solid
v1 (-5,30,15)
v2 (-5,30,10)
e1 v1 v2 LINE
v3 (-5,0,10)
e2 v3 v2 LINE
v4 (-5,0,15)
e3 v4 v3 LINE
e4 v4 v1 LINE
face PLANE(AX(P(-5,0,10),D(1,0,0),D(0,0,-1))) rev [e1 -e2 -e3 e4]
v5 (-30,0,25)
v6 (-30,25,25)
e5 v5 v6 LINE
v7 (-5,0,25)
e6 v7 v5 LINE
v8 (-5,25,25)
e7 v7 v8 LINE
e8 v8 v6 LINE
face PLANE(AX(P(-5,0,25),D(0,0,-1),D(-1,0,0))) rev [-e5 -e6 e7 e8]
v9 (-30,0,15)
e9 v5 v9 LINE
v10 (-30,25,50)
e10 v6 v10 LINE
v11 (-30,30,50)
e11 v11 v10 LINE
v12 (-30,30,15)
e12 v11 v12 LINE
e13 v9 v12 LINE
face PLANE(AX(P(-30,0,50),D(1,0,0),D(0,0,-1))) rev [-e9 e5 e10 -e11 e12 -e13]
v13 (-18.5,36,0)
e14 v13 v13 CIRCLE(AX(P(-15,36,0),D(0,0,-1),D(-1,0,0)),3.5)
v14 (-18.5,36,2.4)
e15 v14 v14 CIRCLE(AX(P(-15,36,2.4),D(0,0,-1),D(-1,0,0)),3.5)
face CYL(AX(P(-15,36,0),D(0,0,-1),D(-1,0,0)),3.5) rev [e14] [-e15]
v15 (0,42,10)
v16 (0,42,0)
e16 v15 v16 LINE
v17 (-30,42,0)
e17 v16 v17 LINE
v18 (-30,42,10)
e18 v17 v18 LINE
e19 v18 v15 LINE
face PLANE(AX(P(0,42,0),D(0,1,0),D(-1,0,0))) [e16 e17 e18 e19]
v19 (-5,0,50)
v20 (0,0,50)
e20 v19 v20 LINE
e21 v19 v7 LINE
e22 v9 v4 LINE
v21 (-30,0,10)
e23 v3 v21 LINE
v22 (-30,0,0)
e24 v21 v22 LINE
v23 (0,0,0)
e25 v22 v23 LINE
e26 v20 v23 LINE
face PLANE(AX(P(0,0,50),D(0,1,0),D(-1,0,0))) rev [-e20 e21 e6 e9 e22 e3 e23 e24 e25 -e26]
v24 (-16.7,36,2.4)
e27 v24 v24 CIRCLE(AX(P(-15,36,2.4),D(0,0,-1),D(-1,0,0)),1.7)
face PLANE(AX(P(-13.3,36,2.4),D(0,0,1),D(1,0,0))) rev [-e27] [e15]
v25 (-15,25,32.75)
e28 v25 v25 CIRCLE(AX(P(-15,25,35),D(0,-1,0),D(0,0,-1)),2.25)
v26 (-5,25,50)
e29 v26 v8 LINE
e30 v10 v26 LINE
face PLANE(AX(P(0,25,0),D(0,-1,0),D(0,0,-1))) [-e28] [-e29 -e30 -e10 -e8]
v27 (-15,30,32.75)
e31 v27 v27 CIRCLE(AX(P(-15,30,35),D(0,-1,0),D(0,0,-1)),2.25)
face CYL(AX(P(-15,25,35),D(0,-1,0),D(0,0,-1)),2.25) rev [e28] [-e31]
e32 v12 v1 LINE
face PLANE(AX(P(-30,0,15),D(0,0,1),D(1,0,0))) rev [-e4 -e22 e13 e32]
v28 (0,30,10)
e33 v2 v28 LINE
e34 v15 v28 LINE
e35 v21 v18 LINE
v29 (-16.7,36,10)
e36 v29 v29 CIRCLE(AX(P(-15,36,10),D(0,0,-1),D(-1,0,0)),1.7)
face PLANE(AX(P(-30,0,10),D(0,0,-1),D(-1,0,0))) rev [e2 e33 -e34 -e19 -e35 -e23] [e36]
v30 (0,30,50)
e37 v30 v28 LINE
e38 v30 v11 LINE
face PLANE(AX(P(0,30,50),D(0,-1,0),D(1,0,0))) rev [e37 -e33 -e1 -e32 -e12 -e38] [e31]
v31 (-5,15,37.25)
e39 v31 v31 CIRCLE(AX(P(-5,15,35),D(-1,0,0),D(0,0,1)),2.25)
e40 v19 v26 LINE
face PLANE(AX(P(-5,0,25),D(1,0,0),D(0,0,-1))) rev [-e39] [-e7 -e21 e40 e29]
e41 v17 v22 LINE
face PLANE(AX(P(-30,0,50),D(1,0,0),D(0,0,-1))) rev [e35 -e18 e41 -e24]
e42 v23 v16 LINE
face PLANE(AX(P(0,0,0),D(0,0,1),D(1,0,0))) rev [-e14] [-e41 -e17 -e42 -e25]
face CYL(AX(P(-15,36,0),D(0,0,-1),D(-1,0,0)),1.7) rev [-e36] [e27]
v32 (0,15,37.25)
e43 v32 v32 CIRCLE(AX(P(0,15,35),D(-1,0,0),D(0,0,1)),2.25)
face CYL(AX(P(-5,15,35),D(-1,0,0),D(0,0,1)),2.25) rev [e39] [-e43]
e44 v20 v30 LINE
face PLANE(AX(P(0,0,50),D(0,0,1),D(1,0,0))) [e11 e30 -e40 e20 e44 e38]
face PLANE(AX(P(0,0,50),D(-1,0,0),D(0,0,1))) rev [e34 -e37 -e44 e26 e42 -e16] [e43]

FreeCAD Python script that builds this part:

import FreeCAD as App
import Part
import Sketcher
from FreeCAD import Vector

doc = App.newDocument("Part")
params = doc.addObject("Spreadsheet::Sheet", "Params")
for row, (alias, value) in enumerate([
    ("sketch1_width", "30 mm"),
    ("pad1_length", "50 mm"),
    ("sketch2_width", "25 mm"),
    ("sketch2_height", "5 mm"),
    ("sketch3_width", "25 mm"),
    ("sketch4_diameter", "4.5 mm"),
    ("hole_diameter", "4.5 mm"),
    ("sketch5_diameter", "4.5 mm"),
    ("hole2_diameter", "4.5 mm"),
    ("sketch6_width", "30 mm"),
    ("sketch6_height", "10 mm"),
    ("pad2_length", "12 mm"),
    ("sketch7_diameter", "3.4 mm"),
    ("hole3_diameter", "3.4 mm"),
    ("hole3_cbore_diameter", "7 mm"),
    ("hole3_cbore_depth", "2.4 mm"),
], start=1):
    params.set(f"A{row}", alias)
    params.set(f"B{row}", "=" + value)
    params.setAlias(f"B{row}", alias)

body = doc.addObject("PartDesign::Body", "Body")

sketch1 = body.newObject("Sketcher::SketchObject", "Sketch")
sketch1.AttachmentSupport = (doc.getObject("XY_Plane"), [""])
sketch1.MapMode = "FlatFace"
sketch1.addGeometry(Part.LineSegment(Vector(-30, 30, 0), Vector(-30, 0, 0)), False)
sketch1.addGeometry(Part.LineSegment(Vector(-30, 0, 0), Vector(0, 0, 0)), False)
sketch1.addGeometry(Part.LineSegment(Vector(0, 0, 0), Vector(0, 30, 0)), False)
sketch1.addGeometry(Part.LineSegment(Vector(0, 30, 0), Vector(-30, 30, 0)), False)
sketch1.addConstraint(Sketcher.Constraint("Coincident", 0, 2, 1, 1))
sketch1.addConstraint(Sketcher.Constraint("Coincident", 1, 2, 2, 1))
sketch1.addConstraint(Sketcher.Constraint("Coincident", 2, 2, 3, 1))
sketch1.addConstraint(Sketcher.Constraint("Coincident", 3, 2, 0, 1))
sketch1.addConstraint(Sketcher.Constraint("Vertical", 0))
sketch1.addConstraint(Sketcher.Constraint("Horizontal", 1))
sketch1.addConstraint(Sketcher.Constraint("Vertical", 2))
sketch1.addConstraint(Sketcher.Constraint("Horizontal", 3))
sketch1.addConstraint(Sketcher.Constraint("Coincident", 1, 2, -1, 1))
sketch1.addConstraint(Sketcher.Constraint("Equal", 3, 0))
sketch1.addConstraint(Sketcher.Constraint("DistanceX", 1, 1, 1, 2, 30.0))
sketch1.setExpression("Constraints[10]", "Params.sketch1_width")
pad1 = body.newObject("PartDesign::Pad", "Pad")
pad1.Profile = sketch1
pad1.setExpression("Length", "Params.pad1_length")

sketch2 = body.newObject("Sketcher::SketchObject", "Sketch001")
sketch2.AttachmentSupport = (doc.getObject("XZ_Plane"), [""])
sketch2.MapMode = "FlatFace"
sketch2.AttachmentOffset = App.Placement(Vector(0, 0, -30), App.Rotation())
sketch2.addGeometry(Part.LineSegment(Vector(-30, 10, 0), Vector(-30, 15, 0)), False)
sketch2.addGeometry(Part.LineSegment(Vector(-30, 15, 0), Vector(-5, 15, 0)), False)
sketch2.addGeometry(Part.LineSegment(Vector(-5, 15, 0), Vector(-5, 10, 0)), False)
sketch2.addGeometry(Part.LineSegment(Vector(-5, 10, 0), Vector(-30, 10, 0)), False)
sketch2.addConstraint(Sketcher.Constraint("Coincident", 0, 2, 1, 1))
sketch2.addConstraint(Sketcher.Constraint("Coincident", 1, 2, 2, 1))
sketch2.addConstraint(Sketcher.Constraint("Coincident", 2, 2, 3, 1))
sketch2.addConstraint(Sketcher.Constraint("Coincident", 3, 2, 0, 1))
sketch2.addConstraint(Sketcher.Constraint("Vertical", 0))
sketch2.addConstraint(Sketcher.Constraint("Horizontal", 1))
sketch2.addConstraint(Sketcher.Constraint("Vertical", 2))
sketch2.addConstraint(Sketcher.Constraint("Horizontal", 3))
sketch2.addConstraint(Sketcher.Constraint("DistanceX", 1, 1, 1, 2, 25.0))
sketch2.addConstraint(Sketcher.Constraint("DistanceY", 0, 1, 0, 2, 5.0))
sketch2.addConstraint(Sketcher.Constraint("DistanceX", 0, 2, -1, 1, 30.0))
sketch2.addConstraint(Sketcher.Constraint("DistanceY", -1, 1, 0, 2, 15.0))
sketch2.setExpression("Constraints[8]", "Params.sketch2_width")
sketch2.setExpression("Constraints[9]", "Params.sketch2_height")
pocket1 = body.newObject("PartDesign::Pocket", "Pocket")
pocket1.Profile = sketch2
pocket1.Type = "ThroughAll"
pocket1.Reversed = True

sketch3 = body.newObject("Sketcher::SketchObject", "Sketch002")
sketch3.AttachmentSupport = (doc.getObject("XZ_Plane"), [""])
sketch3.MapMode = "FlatFace"
sketch3.AttachmentOffset = App.Placement(Vector(0, 0, -25), App.Rotation())
sketch3.addGeometry(Part.LineSegment(Vector(-30, 25, 0), Vector(-30, 50, 0)), False)
sketch3.addGeometry(Part.LineSegment(Vector(-30, 50, 0), Vector(-5, 50, 0)), False)
sketch3.addGeometry(Part.LineSegment(Vector(-5, 50, 0), Vector(-5, 25, 0)), False)
sketch3.addGeometry(Part.LineSegment(Vector(-5, 25, 0), Vector(-30, 25, 0)), False)
sketch3.addConstraint(Sketcher.Constraint("Coincident", 0, 2, 1, 1))
sketch3.addConstraint(Sketcher.Constraint("Coincident", 1, 2, 2, 1))
sketch3.addConstraint(Sketcher.Constraint("Coincident", 2, 2, 3, 1))
sketch3.addConstraint(Sketcher.Constraint("Coincident", 3, 2, 0, 1))
sketch3.addConstraint(Sketcher.Constraint("Vertical", 0))
sketch3.addConstraint(Sketcher.Constraint("Horizontal", 1))
sketch3.addConstraint(Sketcher.Constraint("Vertical", 2))
sketch3.addConstraint(Sketcher.Constraint("Horizontal", 3))
sketch3.addConstraint(Sketcher.Constraint("Equal", 3, 0))
sketch3.addConstraint(Sketcher.Constraint("DistanceX", 1, 1, 1, 2, 25.0))
sketch3.addConstraint(Sketcher.Constraint("DistanceX", 0, 2, -1, 1, 30.0))
sketch3.addConstraint(Sketcher.Constraint("DistanceY", -1, 1, 0, 2, 50.0))
sketch3.setExpression("Constraints[9]", "Params.sketch3_width")
pocket2 = body.newObject("PartDesign::Pocket", "Pocket001")
pocket2.Profile = sketch3
pocket2.Type = "ThroughAll"
pocket2.Reversed = True

sketch4 = body.newObject("Sketcher::SketchObject", "Sketch003")
sketch4.AttachmentSupport = (doc.getObject("YZ_Plane"), [""])
sketch4.MapMode = "FlatFace"
sketch4.AttachmentOffset = App.Placement(Vector(0, 0, -5), App.Rotation())
sketch4.addGeometry(Part.Circle(Vector(15, 35, 0), Vector(0, 0, 1), 2.2), False)
sketch4.addConstraint(Sketcher.Constraint("Diameter", 0, 4.5))
sketch4.addConstraint(Sketcher.Constraint("DistanceX", -1, 1, 0, 3, 15.0))
sketch4.addConstraint(Sketcher.Constraint("DistanceY", -1, 1, 0, 3, 35.0))
sketch4.setExpression("Constraints[0]", "Params.sketch4_diameter")
doc.recompute()
hole = body.newObject("PartDesign::Hole", "Hole")
hole.Profile = sketch4
hole.ThreadType = "None"
hole.setExpression("Diameter", "Params.hole_diameter")
hole.DepthType = "ThroughAll"
hole.Reversed = True

sketch5 = body.newObject("Sketcher::SketchObject", "Sketch004")
sketch5.AttachmentSupport = (doc.getObject("XZ_Plane"), [""])
sketch5.MapMode = "FlatFace"
sketch5.AttachmentOffset = App.Placement(Vector(0, 0, -25), App.Rotation())
sketch5.addGeometry(Part.Circle(Vector(-15, 35, 0), Vector(0, 0, 1), 2.2), False)
sketch5.addConstraint(Sketcher.Constraint("Diameter", 0, 4.5))
sketch5.addConstraint(Sketcher.Constraint("DistanceX", 0, 3, -1, 1, 15.0))
sketch5.addConstraint(Sketcher.Constraint("DistanceY", -1, 1, 0, 3, 35.0))
sketch5.setExpression("Constraints[0]", "Params.sketch5_diameter")
doc.recompute()
hole2 = body.newObject("PartDesign::Hole", "Hole001")
hole2.Profile = sketch5
hole2.ThreadType = "None"
hole2.setExpression("Diameter", "Params.hole2_diameter")
hole2.DepthType = "ThroughAll"

sketch6 = body.newObject("Sketcher::SketchObject", "Sketch005")
sketch6.AttachmentSupport = (doc.getObject("XZ_Plane"), [""])
sketch6.MapMode = "FlatFace"
sketch6.AttachmentOffset = App.Placement(Vector(0, 0, -30), App.Rotation())
sketch6.addGeometry(Part.LineSegment(Vector(-30, 0, 0), Vector(-30, 10, 0)), False)
sketch6.addGeometry(Part.LineSegment(Vector(-30, 10, 0), Vector(0, 10, 0)), False)
sketch6.addGeometry(Part.LineSegment(Vector(0, 10, 0), Vector(0, 0, 0)), False)
sketch6.addGeometry(Part.LineSegment(Vector(0, 0, 0), Vector(-30, 0, 0)), False)
sketch6.addConstraint(Sketcher.Constraint("Coincident", 0, 2, 1, 1))
sketch6.addConstraint(Sketcher.Constraint("Coincident", 1, 2, 2, 1))
sketch6.addConstraint(Sketcher.Constraint("Coincident", 2, 2, 3, 1))
sketch6.addConstraint(Sketcher.Constraint("Coincident", 3, 2, 0, 1))
sketch6.addConstraint(Sketcher.Constraint("Vertical", 0))
sketch6.addConstraint(Sketcher.Constraint("Horizontal", 1))
sketch6.addConstraint(Sketcher.Constraint("Vertical", 2))
sketch6.addConstraint(Sketcher.Constraint("Horizontal", 3))
sketch6.addConstraint(Sketcher.Constraint("Coincident", 2, 2, -1, 1))
sketch6.addConstraint(Sketcher.Constraint("DistanceX", 1, 1, 1, 2, 30.0))
sketch6.addConstraint(Sketcher.Constraint("DistanceY", 0, 1, 0, 2, 10.0))
sketch6.setExpression("Constraints[9]", "Params.sketch6_width")
sketch6.setExpression("Constraints[10]", "Params.sketch6_height")
pad2 = body.newObject("PartDesign::Pad", "Pad001")
pad2.Profile = sketch6
pad2.setExpression("Length", "Params.pad2_length")
pad2.Reversed = True

sketch7 = body.newObject("Sketcher::SketchObject", "Sketch006")
sketch7.AttachmentSupport = (doc.getObject("XY_Plane"), [""])
sketch7.MapMode = "FlatFace"
sketch7.addGeometry(Part.Circle(Vector(-15, 36, 0), Vector(0, 0, 1), 1.7), False)
sketch7.addConstraint(Sketcher.Constraint("Diameter", 0, 3.4))
sketch7.addConstraint(Sketcher.Constraint("DistanceX", 0, 3, -1, 1, 15.0))
sketch7.addConstraint(Sketcher.Constraint("DistanceY", -1, 1, 0, 3, 36.0))
sketch7.setExpression("Constraints[0]", "Params.sketch7_diameter")
doc.recompute()
hole3 = body.newObject("PartDesign::Hole", "Hole002")
hole3.Profile = sketch7
hole3.ThreadType = "None"
hole3.setExpression("Diameter", "Params.hole3_diameter")
hole3.DepthType = "ThroughAll"
hole3.HoleCutType = "Counterbore"
hole3.setExpression("HoleCutDiameter", "Params.hole3_cbore_diameter")
hole3.setExpression("HoleCutDepth", "Params.hole3_cbore_depth")
hole3.Reversed = True

doc.recompute()
